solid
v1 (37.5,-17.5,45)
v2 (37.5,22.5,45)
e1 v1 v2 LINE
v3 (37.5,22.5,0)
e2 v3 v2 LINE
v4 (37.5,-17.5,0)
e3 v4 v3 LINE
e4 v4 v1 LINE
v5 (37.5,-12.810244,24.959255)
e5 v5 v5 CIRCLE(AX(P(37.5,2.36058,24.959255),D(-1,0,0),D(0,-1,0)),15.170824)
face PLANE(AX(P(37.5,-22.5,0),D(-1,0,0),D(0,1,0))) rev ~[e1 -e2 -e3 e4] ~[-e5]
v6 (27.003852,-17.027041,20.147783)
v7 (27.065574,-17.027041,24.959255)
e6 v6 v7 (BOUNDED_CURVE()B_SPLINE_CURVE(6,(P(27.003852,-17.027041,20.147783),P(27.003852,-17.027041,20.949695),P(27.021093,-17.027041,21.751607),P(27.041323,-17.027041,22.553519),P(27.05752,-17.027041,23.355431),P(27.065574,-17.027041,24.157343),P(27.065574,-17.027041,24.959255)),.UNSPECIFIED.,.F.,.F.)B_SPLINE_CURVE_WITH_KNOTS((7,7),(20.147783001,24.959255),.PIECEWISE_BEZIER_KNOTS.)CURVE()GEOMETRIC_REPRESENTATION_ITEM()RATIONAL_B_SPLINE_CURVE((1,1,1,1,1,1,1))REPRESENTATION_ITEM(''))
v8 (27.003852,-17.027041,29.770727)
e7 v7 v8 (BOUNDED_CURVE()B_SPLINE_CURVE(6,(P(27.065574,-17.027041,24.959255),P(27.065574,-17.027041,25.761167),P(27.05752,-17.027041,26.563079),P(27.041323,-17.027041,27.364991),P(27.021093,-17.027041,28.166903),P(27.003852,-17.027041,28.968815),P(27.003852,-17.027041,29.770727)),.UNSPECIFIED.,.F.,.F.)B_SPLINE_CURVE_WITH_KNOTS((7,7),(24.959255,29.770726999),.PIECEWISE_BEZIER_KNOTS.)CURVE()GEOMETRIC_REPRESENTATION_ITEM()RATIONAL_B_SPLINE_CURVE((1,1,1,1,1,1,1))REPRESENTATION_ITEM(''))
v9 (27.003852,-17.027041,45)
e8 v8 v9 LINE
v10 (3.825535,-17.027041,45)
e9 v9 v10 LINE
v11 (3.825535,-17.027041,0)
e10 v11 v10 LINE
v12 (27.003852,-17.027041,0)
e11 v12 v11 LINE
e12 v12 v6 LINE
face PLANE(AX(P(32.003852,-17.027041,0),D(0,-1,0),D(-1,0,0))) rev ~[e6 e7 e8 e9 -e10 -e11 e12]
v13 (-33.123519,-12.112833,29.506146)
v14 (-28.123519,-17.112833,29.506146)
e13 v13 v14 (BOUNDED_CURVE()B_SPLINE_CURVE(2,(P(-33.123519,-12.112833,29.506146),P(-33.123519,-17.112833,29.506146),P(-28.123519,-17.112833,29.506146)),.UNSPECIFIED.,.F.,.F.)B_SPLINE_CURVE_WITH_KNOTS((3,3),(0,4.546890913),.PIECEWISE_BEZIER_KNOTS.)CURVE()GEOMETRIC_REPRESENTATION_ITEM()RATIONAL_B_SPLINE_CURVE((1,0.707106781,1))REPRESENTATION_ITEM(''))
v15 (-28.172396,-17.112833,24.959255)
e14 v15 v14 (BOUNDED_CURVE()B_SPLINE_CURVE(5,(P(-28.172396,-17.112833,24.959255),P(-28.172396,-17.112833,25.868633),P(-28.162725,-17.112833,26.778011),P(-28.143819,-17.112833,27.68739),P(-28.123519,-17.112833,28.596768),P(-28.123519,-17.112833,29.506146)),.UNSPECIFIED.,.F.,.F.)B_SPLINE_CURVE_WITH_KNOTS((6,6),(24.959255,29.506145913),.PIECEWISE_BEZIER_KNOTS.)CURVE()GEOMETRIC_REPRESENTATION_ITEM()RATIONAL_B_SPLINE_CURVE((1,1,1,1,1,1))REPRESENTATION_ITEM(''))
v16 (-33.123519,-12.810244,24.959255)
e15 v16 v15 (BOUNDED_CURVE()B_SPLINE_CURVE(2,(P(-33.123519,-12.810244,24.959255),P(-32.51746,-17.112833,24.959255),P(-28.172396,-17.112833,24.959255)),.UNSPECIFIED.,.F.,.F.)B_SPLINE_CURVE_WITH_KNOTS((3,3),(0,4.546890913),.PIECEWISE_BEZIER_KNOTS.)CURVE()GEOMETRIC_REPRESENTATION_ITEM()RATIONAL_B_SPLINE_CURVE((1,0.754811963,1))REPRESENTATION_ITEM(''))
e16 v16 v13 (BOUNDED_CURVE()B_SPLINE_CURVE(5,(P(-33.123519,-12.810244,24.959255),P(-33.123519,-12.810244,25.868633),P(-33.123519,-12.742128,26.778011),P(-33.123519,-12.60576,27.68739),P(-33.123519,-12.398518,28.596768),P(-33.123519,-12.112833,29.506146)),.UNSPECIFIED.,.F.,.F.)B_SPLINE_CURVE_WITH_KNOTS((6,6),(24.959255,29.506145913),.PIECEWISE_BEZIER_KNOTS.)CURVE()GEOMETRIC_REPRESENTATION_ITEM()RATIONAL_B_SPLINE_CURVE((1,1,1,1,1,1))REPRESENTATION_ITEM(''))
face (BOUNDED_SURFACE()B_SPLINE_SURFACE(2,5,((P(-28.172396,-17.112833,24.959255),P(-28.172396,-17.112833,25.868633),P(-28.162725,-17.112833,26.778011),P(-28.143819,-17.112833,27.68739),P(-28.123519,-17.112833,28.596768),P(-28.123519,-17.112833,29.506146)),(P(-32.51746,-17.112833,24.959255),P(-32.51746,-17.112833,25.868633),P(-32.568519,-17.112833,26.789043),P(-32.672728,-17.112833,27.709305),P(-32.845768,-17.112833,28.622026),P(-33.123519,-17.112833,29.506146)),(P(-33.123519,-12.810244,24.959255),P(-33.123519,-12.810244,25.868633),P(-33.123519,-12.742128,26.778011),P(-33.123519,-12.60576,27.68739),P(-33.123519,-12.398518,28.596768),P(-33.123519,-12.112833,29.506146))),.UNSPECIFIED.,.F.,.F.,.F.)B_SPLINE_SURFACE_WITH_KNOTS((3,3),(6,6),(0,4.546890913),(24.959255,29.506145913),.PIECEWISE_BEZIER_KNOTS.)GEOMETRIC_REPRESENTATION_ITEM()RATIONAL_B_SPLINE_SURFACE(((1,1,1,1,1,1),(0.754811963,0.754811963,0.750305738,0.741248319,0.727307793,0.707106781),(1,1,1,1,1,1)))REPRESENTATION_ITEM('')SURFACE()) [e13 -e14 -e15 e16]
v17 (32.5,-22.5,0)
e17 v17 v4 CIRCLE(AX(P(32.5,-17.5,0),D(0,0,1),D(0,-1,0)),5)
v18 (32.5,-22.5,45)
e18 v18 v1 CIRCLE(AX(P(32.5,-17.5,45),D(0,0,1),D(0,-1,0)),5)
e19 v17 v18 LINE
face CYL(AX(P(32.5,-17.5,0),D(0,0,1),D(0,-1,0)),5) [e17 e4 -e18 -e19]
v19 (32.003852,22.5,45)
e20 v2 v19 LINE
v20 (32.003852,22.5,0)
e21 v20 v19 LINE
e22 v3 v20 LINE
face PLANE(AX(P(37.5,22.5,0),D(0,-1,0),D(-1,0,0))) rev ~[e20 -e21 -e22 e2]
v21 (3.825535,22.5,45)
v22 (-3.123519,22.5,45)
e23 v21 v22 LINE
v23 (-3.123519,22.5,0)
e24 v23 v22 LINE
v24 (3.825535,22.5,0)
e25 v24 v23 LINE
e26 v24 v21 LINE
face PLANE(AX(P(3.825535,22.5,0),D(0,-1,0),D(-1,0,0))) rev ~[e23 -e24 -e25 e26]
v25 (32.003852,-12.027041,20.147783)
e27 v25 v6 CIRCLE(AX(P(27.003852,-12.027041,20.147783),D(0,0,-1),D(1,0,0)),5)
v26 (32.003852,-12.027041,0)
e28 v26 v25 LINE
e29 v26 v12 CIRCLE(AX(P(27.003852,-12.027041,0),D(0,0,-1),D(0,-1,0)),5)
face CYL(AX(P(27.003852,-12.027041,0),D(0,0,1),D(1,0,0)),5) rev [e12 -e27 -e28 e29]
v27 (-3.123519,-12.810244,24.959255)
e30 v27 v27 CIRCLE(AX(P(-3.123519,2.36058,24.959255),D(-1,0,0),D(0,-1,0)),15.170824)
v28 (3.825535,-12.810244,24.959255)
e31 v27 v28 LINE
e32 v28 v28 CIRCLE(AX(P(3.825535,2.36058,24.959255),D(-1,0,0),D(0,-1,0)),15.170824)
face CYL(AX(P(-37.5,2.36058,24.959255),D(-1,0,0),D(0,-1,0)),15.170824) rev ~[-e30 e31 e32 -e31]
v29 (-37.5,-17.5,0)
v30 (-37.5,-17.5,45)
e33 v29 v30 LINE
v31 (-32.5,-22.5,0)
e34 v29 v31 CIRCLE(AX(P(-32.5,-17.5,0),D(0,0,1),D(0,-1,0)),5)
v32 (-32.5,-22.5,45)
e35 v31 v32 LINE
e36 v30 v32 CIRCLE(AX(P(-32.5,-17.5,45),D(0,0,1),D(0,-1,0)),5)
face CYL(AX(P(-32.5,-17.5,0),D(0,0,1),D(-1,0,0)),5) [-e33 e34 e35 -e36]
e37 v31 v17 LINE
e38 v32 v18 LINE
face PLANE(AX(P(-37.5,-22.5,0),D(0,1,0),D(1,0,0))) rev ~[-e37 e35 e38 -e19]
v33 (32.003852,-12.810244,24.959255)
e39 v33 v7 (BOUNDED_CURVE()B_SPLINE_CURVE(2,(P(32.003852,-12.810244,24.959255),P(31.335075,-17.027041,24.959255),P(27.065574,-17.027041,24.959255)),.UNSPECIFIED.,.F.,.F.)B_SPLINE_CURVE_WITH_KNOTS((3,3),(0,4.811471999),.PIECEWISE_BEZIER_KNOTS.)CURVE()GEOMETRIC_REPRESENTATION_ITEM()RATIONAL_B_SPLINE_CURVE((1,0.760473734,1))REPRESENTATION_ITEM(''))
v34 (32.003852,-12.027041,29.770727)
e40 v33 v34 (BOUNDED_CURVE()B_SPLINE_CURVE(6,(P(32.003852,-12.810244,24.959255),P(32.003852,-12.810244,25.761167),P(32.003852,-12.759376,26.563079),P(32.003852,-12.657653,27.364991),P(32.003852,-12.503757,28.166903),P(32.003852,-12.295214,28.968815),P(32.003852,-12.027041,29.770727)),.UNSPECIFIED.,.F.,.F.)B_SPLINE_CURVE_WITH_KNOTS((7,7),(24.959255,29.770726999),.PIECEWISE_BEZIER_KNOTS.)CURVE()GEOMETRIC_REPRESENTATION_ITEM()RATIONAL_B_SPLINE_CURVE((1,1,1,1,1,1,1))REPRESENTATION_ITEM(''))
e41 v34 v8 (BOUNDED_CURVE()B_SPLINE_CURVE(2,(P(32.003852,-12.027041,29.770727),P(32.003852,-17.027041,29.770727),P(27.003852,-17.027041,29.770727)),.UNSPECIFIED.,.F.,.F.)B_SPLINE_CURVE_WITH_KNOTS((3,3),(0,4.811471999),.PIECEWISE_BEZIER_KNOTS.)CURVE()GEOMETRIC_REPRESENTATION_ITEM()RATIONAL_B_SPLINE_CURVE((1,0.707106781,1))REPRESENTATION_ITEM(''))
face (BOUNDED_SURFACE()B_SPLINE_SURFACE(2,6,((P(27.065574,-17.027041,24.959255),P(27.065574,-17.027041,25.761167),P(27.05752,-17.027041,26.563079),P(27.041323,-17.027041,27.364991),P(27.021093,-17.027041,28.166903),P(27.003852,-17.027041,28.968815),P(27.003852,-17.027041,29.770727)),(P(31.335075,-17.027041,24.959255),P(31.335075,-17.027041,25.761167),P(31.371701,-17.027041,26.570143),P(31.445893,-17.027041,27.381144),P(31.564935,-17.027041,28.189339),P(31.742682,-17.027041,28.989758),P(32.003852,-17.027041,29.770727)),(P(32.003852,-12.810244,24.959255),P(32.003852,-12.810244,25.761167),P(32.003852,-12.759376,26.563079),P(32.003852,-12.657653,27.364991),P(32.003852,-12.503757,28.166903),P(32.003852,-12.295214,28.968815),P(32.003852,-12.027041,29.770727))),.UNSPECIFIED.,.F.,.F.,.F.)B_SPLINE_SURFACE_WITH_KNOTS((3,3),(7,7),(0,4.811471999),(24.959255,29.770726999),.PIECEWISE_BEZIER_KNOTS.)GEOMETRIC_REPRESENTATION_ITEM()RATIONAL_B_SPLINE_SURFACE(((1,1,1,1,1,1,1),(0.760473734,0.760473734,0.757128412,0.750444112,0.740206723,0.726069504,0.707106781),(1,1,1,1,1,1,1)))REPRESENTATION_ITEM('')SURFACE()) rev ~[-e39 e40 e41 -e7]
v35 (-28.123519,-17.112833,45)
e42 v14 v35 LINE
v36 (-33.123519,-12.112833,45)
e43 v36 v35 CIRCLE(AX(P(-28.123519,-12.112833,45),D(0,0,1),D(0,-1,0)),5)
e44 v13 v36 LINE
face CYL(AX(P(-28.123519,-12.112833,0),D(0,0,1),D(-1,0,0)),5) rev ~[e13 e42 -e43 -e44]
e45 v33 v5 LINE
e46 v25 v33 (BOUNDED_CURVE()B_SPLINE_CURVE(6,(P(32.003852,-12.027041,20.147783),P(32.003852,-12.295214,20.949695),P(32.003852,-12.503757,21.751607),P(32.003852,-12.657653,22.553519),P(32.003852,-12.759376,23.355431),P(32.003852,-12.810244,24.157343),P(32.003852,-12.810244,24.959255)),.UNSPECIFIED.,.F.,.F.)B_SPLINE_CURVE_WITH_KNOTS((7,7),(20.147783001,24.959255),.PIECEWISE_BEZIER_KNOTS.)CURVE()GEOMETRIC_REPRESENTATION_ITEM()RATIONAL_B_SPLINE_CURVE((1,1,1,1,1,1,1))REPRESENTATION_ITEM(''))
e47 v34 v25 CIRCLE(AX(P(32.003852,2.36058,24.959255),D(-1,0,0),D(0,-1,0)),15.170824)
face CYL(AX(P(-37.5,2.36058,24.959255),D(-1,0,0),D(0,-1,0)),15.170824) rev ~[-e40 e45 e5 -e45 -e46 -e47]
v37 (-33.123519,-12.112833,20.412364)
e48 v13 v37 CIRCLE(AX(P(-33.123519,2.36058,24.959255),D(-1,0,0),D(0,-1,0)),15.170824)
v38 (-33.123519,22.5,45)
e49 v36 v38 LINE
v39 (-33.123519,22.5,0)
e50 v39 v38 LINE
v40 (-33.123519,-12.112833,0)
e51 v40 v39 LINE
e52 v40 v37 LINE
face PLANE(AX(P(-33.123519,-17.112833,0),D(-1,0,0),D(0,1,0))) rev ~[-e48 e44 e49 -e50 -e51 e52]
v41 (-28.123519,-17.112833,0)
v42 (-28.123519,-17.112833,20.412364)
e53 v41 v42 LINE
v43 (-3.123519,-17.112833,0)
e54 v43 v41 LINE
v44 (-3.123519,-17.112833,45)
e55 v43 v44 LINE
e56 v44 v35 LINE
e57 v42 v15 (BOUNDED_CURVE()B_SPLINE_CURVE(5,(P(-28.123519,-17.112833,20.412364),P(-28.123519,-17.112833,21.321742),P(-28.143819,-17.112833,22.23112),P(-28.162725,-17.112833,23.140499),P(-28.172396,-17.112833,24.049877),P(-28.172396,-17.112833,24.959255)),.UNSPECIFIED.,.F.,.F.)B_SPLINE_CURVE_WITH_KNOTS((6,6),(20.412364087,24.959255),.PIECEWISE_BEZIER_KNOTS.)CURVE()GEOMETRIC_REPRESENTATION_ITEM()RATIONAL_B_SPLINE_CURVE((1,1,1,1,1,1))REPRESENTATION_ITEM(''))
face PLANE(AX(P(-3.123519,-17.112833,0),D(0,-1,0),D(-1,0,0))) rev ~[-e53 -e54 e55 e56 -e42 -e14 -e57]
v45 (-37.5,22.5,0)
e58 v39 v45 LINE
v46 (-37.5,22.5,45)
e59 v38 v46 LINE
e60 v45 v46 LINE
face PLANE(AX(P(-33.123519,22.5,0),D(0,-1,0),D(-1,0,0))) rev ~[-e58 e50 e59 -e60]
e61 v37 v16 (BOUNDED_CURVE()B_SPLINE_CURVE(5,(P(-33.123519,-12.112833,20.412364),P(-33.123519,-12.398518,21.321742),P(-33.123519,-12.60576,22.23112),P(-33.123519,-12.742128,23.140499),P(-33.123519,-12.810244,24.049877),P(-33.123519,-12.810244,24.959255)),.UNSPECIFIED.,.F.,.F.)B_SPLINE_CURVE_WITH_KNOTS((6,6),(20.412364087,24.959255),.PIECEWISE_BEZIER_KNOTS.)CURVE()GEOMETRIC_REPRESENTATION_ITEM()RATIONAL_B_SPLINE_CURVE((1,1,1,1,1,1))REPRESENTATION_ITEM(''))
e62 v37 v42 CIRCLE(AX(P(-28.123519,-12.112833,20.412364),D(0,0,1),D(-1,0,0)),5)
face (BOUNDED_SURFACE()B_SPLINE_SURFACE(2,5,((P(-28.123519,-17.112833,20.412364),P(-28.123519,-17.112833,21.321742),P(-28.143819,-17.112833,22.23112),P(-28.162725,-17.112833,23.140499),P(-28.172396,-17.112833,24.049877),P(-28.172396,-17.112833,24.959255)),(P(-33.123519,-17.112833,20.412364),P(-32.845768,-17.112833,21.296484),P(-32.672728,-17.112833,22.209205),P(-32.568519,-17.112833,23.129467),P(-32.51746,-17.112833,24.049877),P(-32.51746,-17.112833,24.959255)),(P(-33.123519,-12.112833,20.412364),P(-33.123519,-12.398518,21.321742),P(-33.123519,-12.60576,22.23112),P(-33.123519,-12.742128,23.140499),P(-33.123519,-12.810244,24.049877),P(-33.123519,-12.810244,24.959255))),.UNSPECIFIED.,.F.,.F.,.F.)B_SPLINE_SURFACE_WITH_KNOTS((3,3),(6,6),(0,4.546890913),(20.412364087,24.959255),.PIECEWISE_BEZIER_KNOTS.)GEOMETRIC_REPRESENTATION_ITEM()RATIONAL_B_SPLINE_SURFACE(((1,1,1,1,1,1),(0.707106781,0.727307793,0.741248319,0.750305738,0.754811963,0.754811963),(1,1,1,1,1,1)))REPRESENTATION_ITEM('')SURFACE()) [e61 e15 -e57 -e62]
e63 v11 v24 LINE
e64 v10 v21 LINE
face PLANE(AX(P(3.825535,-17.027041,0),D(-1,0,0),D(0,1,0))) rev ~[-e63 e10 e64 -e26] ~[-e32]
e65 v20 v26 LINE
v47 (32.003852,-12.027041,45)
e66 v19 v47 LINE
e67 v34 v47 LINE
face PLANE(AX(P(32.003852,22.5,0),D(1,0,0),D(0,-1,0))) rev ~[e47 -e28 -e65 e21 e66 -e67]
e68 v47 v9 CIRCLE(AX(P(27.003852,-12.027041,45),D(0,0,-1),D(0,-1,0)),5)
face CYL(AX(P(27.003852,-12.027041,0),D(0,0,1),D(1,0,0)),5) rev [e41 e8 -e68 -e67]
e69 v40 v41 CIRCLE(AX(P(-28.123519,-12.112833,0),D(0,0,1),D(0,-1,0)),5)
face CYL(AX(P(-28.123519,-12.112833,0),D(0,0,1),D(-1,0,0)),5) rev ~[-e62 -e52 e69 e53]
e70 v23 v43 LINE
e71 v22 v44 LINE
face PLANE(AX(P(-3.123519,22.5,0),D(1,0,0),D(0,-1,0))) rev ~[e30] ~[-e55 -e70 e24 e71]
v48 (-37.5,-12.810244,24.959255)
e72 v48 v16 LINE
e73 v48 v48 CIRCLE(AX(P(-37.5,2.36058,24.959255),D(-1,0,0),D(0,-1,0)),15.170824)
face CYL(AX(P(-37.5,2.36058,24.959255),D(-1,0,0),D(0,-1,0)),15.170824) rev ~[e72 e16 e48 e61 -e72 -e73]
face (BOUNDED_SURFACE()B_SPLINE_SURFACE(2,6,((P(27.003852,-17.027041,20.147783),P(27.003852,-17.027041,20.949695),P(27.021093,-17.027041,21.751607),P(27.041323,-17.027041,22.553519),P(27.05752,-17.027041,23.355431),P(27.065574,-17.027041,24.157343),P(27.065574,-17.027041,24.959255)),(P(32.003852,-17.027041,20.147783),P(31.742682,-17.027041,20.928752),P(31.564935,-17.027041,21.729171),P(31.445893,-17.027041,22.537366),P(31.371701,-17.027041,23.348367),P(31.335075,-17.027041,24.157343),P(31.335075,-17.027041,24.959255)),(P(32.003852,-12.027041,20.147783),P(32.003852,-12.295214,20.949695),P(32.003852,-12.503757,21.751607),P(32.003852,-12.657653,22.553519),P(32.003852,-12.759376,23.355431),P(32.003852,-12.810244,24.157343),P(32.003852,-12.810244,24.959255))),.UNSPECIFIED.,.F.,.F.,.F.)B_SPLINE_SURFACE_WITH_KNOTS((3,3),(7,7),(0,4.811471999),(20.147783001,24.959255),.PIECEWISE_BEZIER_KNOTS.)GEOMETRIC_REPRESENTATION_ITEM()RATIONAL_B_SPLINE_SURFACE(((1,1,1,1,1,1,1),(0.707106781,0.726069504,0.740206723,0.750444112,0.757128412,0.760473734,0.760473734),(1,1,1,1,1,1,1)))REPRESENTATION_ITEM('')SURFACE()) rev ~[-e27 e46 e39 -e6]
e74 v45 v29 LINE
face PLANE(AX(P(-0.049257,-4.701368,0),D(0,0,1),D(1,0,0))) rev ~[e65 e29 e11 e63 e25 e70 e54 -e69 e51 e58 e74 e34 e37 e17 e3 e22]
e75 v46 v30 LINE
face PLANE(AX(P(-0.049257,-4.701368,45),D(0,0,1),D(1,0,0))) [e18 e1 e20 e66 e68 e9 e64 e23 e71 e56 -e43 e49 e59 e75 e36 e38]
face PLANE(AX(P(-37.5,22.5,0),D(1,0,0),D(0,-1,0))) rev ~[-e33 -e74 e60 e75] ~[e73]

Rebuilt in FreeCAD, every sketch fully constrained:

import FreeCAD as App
import Part
import Sketcher
from FreeCAD import Vector


def edges_at(feature, points):
    """Names of the edges that pass closest to the given points."""
    edges = feature.Shape.Edges
    near = lambda p: min(range(len(edges)), key=lambda i: edges[i].distToShape(Part.Vertex(*p))[0])
    return sorted({f"Edge{near(p) + 1}" for p in points})

doc = App.newDocument("Part")
body = doc.addObject("PartDesign::Body", "Body")

sketch1 = body.newObject("Sketcher::SketchObject", "Sketch")
sketch1.AttachmentSupport = (doc.getObject("XY_Plane"), [""])
sketch1.MapMode = "FlatFace"
sketch1.addGeometry([
    Part.LineSegment(Vector(-33.1, 22.5, 0), Vector(-37.5, 22.5, 0)),
    Part.LineSegment(Vector(-37.5, 22.5, 0), Vector(-37.5, -22.5, 0)),
    Part.LineSegment(Vector(-37.5, -22.5, 0), Vector(37.5, -22.5, 0)),
    Part.LineSegment(Vector(37.5, -22.5, 0), Vector(37.5, 22.5, 0)),
    Part.LineSegment(Vector(37.5, 22.5, 0), Vector(32, 22.5, 0)),
    Part.LineSegment(Vector(32, 22.5, 0), Vector(32, -17, 0)),
    Part.LineSegment(Vector(32, -17, 0), Vector(3.8, -17, 0)),
    Part.LineSegment(Vector(3.8, -17, 0), Vector(3.8, 22.5, 0)),
    Part.LineSegment(Vector(3.8, 22.5, 0), Vector(-3.1, 22.5, 0)),
    Part.LineSegment(Vector(-3.1, 22.5, 0), Vector(-3.1, -17.1, 0)),
    Part.LineSegment(Vector(-3.1, -17.1, 0), Vector(-33.1, -17.1, 0)),
    Part.LineSegment(Vector(-33.1, -17.1, 0), Vector(-33.1, 22.5, 0)),
], False)
sketch1.addConstraint([
    Sketcher.Constraint("Coincident", 0, 2, 1, 1),
    Sketcher.Constraint("Coincident", 1, 2, 2, 1),
    Sketcher.Constraint("Coincident", 2, 2, 3, 1),
    Sketcher.Constraint("Coincident", 3, 2, 4, 1),
    Sketcher.Constraint("Coincident", 4, 2, 5, 1),
    Sketcher.Constraint("Coincident", 5, 2, 6, 1),
    Sketcher.Constraint("Coincident", 6, 2, 7, 1),
    Sketcher.Constraint("Coincident", 7, 2, 8, 1),
    Sketcher.Constraint("Coincident", 8, 2, 9, 1),
    Sketcher.Constraint("Coincident", 9, 2, 10, 1),
    Sketcher.Constraint("Coincident", 10, 2, 11, 1),
    Sketcher.Constraint("Coincident", 11, 2, 0, 1),
    Sketcher.Constraint("Horizontal", 0),
    Sketcher.Constraint("Vertical", 1),
    Sketcher.Constraint("Horizontal", 2),
    Sketcher.Constraint("Vertical", 3),
    Sketcher.Constraint("Horizontal", 4),
    Sketcher.Constraint("Vertical", 5),
    Sketcher.Constraint("Horizontal", 6),
    Sketcher.Constraint("Vertical", 7),
    Sketcher.Constraint("Horizontal", 8),
    Sketcher.Constraint("Vertical", 9),
    Sketcher.Constraint("Horizontal", 10),
    Sketcher.Constraint("Vertical", 11),
    Sketcher.Constraint("Symmetric", 0, 2, 2, 2, -1, 1),
    Sketcher.Constraint("Horizontal", 0, 2, 3, 2),
    Sketcher.Constraint("Horizontal", 4, 2, 7, 2),
    Sketcher.Constraint("DistanceX", 2, 1, 2, 2, 75.0),
    Sketcher.Constraint("DistanceX", 10, 2, 10, 1, 30.0),
    Sketcher.Constraint("DistanceY", 1, 2, 1, 1, 45.0),
    Sketcher.Constraint("DistanceX", 0, 2, 0, 1, 4.376481),
    Sketcher.Constraint("DistanceY", 5, 2, 5, 1, 39.527041),
    Sketcher.Constraint("DistanceX", 4, 2, 4, 1, 5.496148),
    Sketcher.Constraint("DistanceX", 6, 2, 6, 1, 28.178317),
    Sketcher.Constraint("DistanceY", 9, 2, 9, 1, 39.612833),
])
pad1 = body.newObject("PartDesign::Pad", "Pad")
pad1.Profile = sketch1
pad1.Length = 45
doc.recompute()

fillet = body.newObject("PartDesign::Fillet", "Fillet")
fillet.Base = (pad1, edges_at(pad1, [(37.5, -22.5, 22.5), (-37.5, -22.5, 22.5)]))
fillet.Radius = 5

sketch2 = body.newObject("Sketcher::SketchObject", "Sketch001")
sketch2.AttachmentSupport = (doc.getObject("YZ_Plane"), [""])
sketch2.MapMode = "FlatFace"
sketch2.AttachmentOffset = App.Placement(Vector(0, 0, -37.5), App.Rotation())
sketch2.addGeometry(Part.Circle(Vector(2, 25, 0), Vector(0, 0, 1), 15), False)
sketch2.addConstraint([
    Sketcher.Constraint("Diameter", 0, 30.341648),
    Sketcher.Constraint("DistanceX", -1, 1, 0, 3, 2.36058),
    Sketcher.Constraint("DistanceY", -1, 1, 0, 3, 24.959255),
])
pocket1 = body.newObject("PartDesign::Pocket", "Pocket")
pocket1.Profile = sketch2
pocket1.Length = 100
pocket1.Reversed = True
doc.recompute()

fillet2 = body.newObject("PartDesign::Fillet", "Fillet001")
fillet2.Base = (pocket1, edges_at(pocket1, [(-33.124, -17.113, 22.5), (32.004, -17.027, 22.5)]))
fillet2.Radius = 5

doc.recompute()
